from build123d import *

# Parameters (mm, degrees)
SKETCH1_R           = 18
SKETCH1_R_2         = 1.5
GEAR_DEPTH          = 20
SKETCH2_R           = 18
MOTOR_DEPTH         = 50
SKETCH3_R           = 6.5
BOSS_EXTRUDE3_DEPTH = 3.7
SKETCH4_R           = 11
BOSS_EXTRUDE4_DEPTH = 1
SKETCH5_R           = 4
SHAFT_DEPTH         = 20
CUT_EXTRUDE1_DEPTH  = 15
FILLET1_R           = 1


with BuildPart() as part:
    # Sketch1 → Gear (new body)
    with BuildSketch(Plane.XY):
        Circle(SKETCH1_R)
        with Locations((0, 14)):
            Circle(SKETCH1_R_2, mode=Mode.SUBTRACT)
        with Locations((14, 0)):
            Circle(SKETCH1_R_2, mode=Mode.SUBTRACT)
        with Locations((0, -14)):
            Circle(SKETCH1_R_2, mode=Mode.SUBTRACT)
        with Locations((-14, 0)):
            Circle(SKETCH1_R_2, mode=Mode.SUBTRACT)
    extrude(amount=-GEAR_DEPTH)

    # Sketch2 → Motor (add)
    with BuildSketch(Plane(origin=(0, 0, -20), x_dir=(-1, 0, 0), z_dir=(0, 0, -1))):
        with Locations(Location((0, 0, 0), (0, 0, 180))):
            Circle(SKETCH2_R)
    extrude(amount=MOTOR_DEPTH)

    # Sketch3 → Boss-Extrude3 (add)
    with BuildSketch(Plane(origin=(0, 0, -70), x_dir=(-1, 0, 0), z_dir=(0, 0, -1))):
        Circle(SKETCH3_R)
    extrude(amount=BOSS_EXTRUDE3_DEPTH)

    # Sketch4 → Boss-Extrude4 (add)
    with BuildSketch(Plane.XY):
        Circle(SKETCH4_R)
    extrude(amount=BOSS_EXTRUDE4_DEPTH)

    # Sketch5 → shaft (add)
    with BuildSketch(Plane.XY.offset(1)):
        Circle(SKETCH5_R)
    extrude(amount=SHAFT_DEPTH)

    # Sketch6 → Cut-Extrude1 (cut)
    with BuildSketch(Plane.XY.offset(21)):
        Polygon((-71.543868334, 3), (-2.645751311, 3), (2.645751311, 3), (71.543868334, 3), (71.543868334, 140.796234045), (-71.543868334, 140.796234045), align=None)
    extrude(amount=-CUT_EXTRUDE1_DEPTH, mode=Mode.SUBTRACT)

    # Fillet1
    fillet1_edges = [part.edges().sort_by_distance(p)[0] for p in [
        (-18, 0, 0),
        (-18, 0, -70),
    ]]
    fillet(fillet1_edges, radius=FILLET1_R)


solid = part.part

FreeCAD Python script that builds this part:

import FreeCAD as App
import Part
import Sketcher
from FreeCAD import Vector


def edges_at(feature, points):
    """Names of the edges that pass closest to the given points."""
    edges = feature.Shape.Edges
    near = lambda p: min(range(len(edges)), key=lambda i: edges[i].distToShape(Part.Vertex(*p))[0])
    return sorted({f"Edge{near(p) + 1}" for p in points})


def add_polygon(sketch, points):
    """Adds a closed chain of lines whose ends are joined by coincident constraints."""
    first, n = sketch.GeometryCount, len(points)
    for a, b in zip(points, points[1:] + points[:1]):
        sketch.addGeometry(Part.LineSegment(App.Vector(*a, 0), App.Vector(*b, 0)), False)
    for i in range(n):
        sketch.addConstraint(Sketcher.Constraint("Coincident", first + i, 2, first + (i + 1) % n, 1))

doc = App.newDocument("Part")
params = doc.addObject("Spreadsheet::Sheet", "Params")
for row, (alias, value) in enumerate([
    ("sketch1_diameter", "36 mm"),
    ("sketch1_diameter2", "3 mm"),
    ("pad1_length", "20 mm"),
    ("sketch2_diameter", "36 mm"),
    ("pad2_length", "50 mm"),
    ("sketch3_diameter", "13 mm"),
    ("pad3_length", "3.7 mm"),
    ("sketch4_diameter", "22 mm"),
    ("pad4_length", "1 mm"),
    ("sketch5_diameter", "8 mm"),
    ("pad5_length", "20 mm"),
    ("pocket1_length", "15 mm"),
    ("fillet_radius", "1 mm"),
], start=1):
    params.set(f"A{row}", alias)
    params.set(f"B{row}", "=" + value)
    params.setAlias(f"B{row}", alias)

body = doc.addObject("PartDesign::Body", "Body")

# Sketch on XY plane
sketch1 = body.newObject("Sketcher::SketchObject", "Sketch")
sketch1.AttachmentSupport = (doc.getObject("XY_Plane"), [""])
sketch1.MapMode = "FlatFace"
sketch1.addGeometry(Part.Circle(Vector(0, 0, 0), Vector(0, 0, 1), 18), False)
sketch1.addGeometry(Part.Circle(Vector(0, -14, 0), Vector(0, 0, 1), 1.5), False)
sketch1.addGeometry(Part.Circle(Vector(-14, 0, 0), Vector(0, 0, 1), 1.5), False)
sketch1.addGeometry(Part.Circle(Vector(14, 0, 0), Vector(0, 0, 1), 1.5), False)
sketch1.addGeometry(Part.Circle(Vector(0, 14, 0), Vector(0, 0, 1), 1.5), False)
sketch1.addConstraint(Sketcher.Constraint("Coincident", 0, 3, -1, 1))
sketch1.addConstraint(Sketcher.Constraint("Equal", 1, 2))
sketch1.addConstraint(Sketcher.Constraint("Equal", 2, 3))
sketch1.addConstraint(Sketcher.Constraint("Equal", 3, 4))
sketch1.addConstraint(Sketcher.Constraint("Symmetric", 2, 3, 3, 3, -1, 1))
sketch1.addConstraint(Sketcher.Constraint("Symmetric", 1, 3, 4, 3, -1, 1))
sketch1.addConstraint(Sketcher.Constraint("PointOnObject", 1, 3, -2))
sketch1.addConstraint(Sketcher.Constraint("PointOnObject", 2, 3, -1))
sketch1.addConstraint(Sketcher.Constraint("Diameter", 0, 36.0))
sketch1.addConstraint(Sketcher.Constraint("Diameter", 1, 3.0))
sketch1.addConstraint(Sketcher.Constraint("DistanceY", 1, 3, -1, 1, 14.0))
sketch1.addConstraint(Sketcher.Constraint("DistanceX", 2, 3, -1, 1, 14.0))
sketch1.setExpression("Constraints[8]", "Params.sketch1_diameter")
sketch1.setExpression("Constraints[9]", "Params.sketch1_diameter2")
pad1 = body.newObject("PartDesign::Pad", "Pad")
pad1.Profile = sketch1
pad1.setExpression("Length", "Params.pad1_length")
pad1.Reversed = True

# Sketch on XY plane
sketch2 = body.newObject("Sketcher::SketchObject", "Sketch001")
sketch2.AttachmentSupport = (doc.getObject("XY_Plane"), [""])
sketch2.MapMode = "FlatFace"
sketch2.AttachmentOffset = App.Placement(Vector(0, 0, -20), App.Rotation())
sketch2.addGeometry(Part.Circle(Vector(0, 0, 0), Vector(0, 0, 1), 18), False)
sketch2.addConstraint(Sketcher.Constraint("Coincident", 0, 3, -1, 1))
sketch2.addConstraint(Sketcher.Constraint("Diameter", 0, 36.0))
sketch2.setExpression("Constraints[1]", "Params.sketch2_diameter")
pad2 = body.newObject("PartDesign::Pad", "Pad001")
pad2.Profile = sketch2
pad2.setExpression("Length", "Params.pad2_length")
pad2.Reversed = True

# Sketch on XY plane
sketch3 = body.newObject("Sketcher::SketchObject", "Sketch002")
sketch3.AttachmentSupport = (doc.getObject("XY_Plane"), [""])
sketch3.MapMode = "FlatFace"
sketch3.AttachmentOffset = App.Placement(Vector(0, 0, -70), App.Rotation())
sketch3.addGeometry(Part.Circle(Vector(0, 0, 0), Vector(0, 0, 1), 6.5), False)
sketch3.addConstraint(Sketcher.Constraint("Coincident", 0, 3, -1, 1))
sketch3.addConstraint(Sketcher.Constraint("Diameter", 0, 13.0))
sketch3.setExpression("Constraints[1]", "Params.sketch3_diameter")
pad3 = body.newObject("PartDesign::Pad", "Pad002")
pad3.Profile = sketch3
pad3.setExpression("Length", "Params.pad3_length")
pad3.Reversed = True

# Sketch on XY plane
sketch4 = body.newObject("Sketcher::SketchObject", "Sketch003")
sketch4.AttachmentSupport = (doc.getObject("XY_Plane"), [""])
sketch4.MapMode = "FlatFace"
sketch4.addGeometry(Part.Circle(Vector(0, 0, 0), Vector(0, 0, 1), 11), False)
sketch4.addConstraint(Sketcher.Constraint("Coincident", 0, 3, -1, 1))
sketch4.addConstraint(Sketcher.Constraint("Diameter", 0, 22.0))
sketch4.setExpression("Constraints[1]", "Params.sketch4_diameter")
pad4 = body.newObject("PartDesign::Pad", "Pad003")
pad4.Profile = sketch4
pad4.setExpression("Length", "Params.pad4_length")

# Sketch on XY plane
sketch5 = body.newObject("Sketcher::SketchObject", "Sketch004")
sketch5.AttachmentSupport = (doc.getObject("XY_Plane"), [""])
sketch5.MapMode = "FlatFace"
sketch5.AttachmentOffset = App.Placement(Vector(0, 0, 1), App.Rotation())
sketch5.addGeometry(Part.Circle(Vector(0, 0, 0), Vector(0, 0, 1), 4), False)
sketch5.addConstraint(Sketcher.Constraint("Coincident", 0, 3, -1, 1))
sketch5.addConstraint(Sketcher.Constraint("Diameter", 0, 8.0))
sketch5.setExpression("Constraints[1]", "Params.sketch5_diameter")
pad5 = body.newObject("PartDesign::Pad", "Pad004")
pad5.Profile = sketch5
pad5.setExpression("Length", "Params.pad5_length")

# Sketch on XY plane
sketch6 = body.newObject("Sketcher::SketchObject", "Sketch005")
sketch6.AttachmentSupport = (doc.getObject("XY_Plane"), [""])
sketch6.MapMode = "FlatFace"
sketch6.AttachmentOffset = App.Placement(Vector(0, 0, 21), App.Rotation())
add_polygon(sketch6, [(-71.543868, 3), (71.543868, 3), (71.543868, 140.796234), (-71.543868, 140.796234)])  # lines 0-3
sketch6.addConstraint(Sketcher.Constraint("Horizontal", 0))
sketch6.addConstraint(Sketcher.Constraint("Vertical", 1))
sketch6.addConstraint(Sketcher.Constraint("Horizontal", 2))
sketch6.addConstraint(Sketcher.Constraint("Vertical", 3))
sketch6.addConstraint(Sketcher.Constraint("DistanceY", -1, 1, 0, 2, 3.0))
sketch6.addConstraint(Sketcher.Constraint("DistanceX", 0, 1, 0, 2, 143.087737))
sketch6.addConstraint(Sketcher.Constraint("DistanceY", 1, 1, 1, 2, 137.796234))
sketch6.addConstraint(Sketcher.Constraint("DistanceX", -1, 1, 0, 2, 71.543868))
pocket1 = body.newObject("PartDesign::Pocket", "Pocket")
pocket1.Profile = sketch6
pocket1.setExpression("Length", "Params.pocket1_length")
doc.recompute()

fillet = body.newObject("PartDesign::Fillet", "Fillet")
fillet.Base = (pocket1, edges_at(pocket1, [(-18, 0, 0), (-18, 0, -70)]))
fillet.setExpression("Radius", "Params.fillet_radius")

doc.recompute()
